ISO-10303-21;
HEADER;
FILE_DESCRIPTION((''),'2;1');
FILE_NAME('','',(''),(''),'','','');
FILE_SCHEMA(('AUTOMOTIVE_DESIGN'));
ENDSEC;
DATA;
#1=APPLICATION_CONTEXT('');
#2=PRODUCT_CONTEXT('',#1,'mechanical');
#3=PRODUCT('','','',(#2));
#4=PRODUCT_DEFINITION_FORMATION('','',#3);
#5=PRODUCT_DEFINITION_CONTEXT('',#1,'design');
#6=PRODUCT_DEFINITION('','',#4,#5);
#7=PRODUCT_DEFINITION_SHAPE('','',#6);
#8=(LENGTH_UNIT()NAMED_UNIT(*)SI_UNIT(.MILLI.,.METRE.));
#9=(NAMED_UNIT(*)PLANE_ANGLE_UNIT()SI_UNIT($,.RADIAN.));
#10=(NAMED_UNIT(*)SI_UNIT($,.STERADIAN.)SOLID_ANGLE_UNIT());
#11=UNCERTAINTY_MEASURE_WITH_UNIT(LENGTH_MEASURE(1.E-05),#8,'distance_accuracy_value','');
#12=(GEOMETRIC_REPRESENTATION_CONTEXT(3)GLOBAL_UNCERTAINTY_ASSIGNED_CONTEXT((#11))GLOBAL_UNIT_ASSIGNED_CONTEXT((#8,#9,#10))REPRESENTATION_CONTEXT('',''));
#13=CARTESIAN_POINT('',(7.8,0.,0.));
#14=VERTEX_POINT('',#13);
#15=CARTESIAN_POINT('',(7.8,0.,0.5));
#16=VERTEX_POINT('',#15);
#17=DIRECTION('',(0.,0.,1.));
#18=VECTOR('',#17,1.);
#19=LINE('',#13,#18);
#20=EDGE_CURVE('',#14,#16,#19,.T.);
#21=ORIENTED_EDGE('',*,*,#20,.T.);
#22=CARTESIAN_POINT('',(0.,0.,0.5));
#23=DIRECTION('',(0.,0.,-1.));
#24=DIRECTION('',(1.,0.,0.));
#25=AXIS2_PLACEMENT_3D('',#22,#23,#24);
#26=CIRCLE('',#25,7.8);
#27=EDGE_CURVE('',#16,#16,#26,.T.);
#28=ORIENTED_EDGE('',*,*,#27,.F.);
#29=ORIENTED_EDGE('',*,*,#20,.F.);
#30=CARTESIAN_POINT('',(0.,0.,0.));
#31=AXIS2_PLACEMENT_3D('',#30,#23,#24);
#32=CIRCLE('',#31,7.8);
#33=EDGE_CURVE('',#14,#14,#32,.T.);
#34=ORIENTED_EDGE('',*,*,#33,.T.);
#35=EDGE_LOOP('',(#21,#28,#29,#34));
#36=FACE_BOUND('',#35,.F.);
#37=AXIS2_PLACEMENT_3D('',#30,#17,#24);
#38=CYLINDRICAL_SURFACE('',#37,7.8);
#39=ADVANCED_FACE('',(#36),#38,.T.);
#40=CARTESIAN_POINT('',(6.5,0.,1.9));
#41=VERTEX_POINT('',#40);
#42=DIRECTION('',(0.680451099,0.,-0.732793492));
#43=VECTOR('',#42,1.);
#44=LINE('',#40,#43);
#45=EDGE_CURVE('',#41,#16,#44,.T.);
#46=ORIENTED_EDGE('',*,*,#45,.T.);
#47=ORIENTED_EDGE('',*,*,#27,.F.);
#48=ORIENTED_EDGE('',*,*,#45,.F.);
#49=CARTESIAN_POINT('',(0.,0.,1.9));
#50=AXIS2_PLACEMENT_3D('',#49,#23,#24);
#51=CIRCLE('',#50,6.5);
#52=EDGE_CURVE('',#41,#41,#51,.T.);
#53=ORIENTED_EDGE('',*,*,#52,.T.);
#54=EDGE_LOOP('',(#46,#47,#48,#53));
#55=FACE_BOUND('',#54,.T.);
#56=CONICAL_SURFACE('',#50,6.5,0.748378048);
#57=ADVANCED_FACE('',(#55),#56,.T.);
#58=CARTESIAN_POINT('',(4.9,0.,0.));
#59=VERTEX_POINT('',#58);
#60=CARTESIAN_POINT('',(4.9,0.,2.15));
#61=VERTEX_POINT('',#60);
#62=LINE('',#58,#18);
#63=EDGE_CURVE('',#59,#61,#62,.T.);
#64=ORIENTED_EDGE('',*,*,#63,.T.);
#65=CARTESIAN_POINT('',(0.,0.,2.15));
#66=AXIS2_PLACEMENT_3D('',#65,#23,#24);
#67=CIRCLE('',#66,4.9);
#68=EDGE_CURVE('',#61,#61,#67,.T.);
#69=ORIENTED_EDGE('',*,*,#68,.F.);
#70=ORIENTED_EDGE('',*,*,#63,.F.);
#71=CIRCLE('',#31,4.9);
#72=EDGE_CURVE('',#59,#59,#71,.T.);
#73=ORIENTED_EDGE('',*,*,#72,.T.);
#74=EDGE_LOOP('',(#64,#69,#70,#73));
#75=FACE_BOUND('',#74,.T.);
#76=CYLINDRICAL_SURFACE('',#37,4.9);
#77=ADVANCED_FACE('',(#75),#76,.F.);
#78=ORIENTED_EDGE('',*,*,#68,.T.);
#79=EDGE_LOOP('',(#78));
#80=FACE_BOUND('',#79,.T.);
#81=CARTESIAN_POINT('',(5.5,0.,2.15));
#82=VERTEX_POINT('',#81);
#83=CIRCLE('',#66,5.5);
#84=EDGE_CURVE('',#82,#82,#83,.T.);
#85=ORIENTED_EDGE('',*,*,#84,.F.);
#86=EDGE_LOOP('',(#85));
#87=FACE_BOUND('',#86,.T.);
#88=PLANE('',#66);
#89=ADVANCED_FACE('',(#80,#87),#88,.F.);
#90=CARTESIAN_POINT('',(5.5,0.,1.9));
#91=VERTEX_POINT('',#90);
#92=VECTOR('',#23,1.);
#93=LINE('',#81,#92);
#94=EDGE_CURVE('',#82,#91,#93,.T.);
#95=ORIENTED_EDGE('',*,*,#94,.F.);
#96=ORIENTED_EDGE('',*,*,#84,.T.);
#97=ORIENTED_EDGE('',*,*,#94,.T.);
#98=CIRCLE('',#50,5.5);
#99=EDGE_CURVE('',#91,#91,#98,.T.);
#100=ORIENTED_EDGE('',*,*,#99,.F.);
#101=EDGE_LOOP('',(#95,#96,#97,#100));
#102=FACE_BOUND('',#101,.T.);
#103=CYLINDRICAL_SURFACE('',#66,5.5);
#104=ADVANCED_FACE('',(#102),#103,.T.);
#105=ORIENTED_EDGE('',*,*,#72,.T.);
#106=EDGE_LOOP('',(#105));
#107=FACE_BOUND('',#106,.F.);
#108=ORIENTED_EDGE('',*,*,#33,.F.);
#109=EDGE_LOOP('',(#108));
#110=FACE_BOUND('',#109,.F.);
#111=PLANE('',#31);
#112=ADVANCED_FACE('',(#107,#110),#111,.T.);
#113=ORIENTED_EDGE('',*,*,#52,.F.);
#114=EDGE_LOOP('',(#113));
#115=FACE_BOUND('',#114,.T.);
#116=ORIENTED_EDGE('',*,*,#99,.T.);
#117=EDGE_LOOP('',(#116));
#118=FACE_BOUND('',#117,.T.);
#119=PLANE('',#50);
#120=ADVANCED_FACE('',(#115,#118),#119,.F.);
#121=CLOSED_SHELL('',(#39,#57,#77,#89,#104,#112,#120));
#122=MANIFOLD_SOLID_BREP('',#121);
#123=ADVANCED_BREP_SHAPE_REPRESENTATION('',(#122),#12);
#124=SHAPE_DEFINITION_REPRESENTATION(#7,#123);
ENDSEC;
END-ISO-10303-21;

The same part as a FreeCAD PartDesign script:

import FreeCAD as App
import Part
import Sketcher
Q = App.Units.Quantity

doc = App.newDocument("Part")
body = doc.addObject("PartDesign::Body", "Body")

sketch1 = body.newObject("Sketcher::SketchObject", "Sketch")
sketch1.AttachmentSupport = (doc.getObject("XZ_Plane"), [""])
sketch1.MapMode = "FlatFace"
sketch1.addGeometry([
    Part.LineSegment(App.Vector(7.8, 0, 0), App.Vector(4.9, 0, 0)),
    Part.LineSegment(App.Vector(4.9, 0, 0), App.Vector(4.9, 2.15, 0)),
    Part.LineSegment(App.Vector(4.9, 2.15, 0), App.Vector(5.5, 2.15, 0)),
    Part.LineSegment(App.Vector(5.5, 2.15, 0), App.Vector(5.5, 1.9, 0)),
    Part.LineSegment(App.Vector(5.5, 1.9, 0), App.Vector(6.5, 1.9, 0)),
    Part.LineSegment(App.Vector(6.5, 1.9, 0), App.Vector(7.8, 0.5, 0)),
    Part.LineSegment(App.Vector(7.8, 0.5, 0), App.Vector(7.8, 0, 0)),
], False)
sketch1.addConstraint([
    Sketcher.Constraint("Coincident", 0, 2, 1, 1),
    Sketcher.Constraint("Coincident", 1, 2, 2, 1),
    Sketcher.Constraint("Coincident", 2, 2, 3, 1),
    Sketcher.Constraint("Coincident", 3, 2, 4, 1),
    Sketcher.Constraint("Coincident", 4, 2, 5, 1),
    Sketcher.Constraint("Coincident", 5, 2, 6, 1),
    Sketcher.Constraint("Coincident", 6, 2, 0, 1),
    Sketcher.Constraint("Horizontal", 0),
    Sketcher.Constraint("Vertical", 1),
    Sketcher.Constraint("Horizontal", 2),
    Sketcher.Constraint("Vertical", 3),
    Sketcher.Constraint("Horizontal", 4),
    Sketcher.Constraint("Vertical", 6),
    Sketcher.Constraint("PointOnObject", 0, 2, -1),
    Sketcher.Constraint("DistanceX", 0, 2, 0, 1, Q("2.9 mm")),
    Sketcher.Constraint("DistanceX", 2, 1, 2, 2, Q("0.6 mm")),
    Sketcher.Constraint("DistanceY", 6, 2, 6, 1, Q("0.5 mm")),
    Sketcher.Constraint("DistanceY", 1, 1, 1, 2, Q("2.15 mm")),
    Sketcher.Constraint("DistanceX", -1, 1, 0, 2, Q("4.9 mm")),
    Sketcher.Constraint("DistanceY", -1, 1, 3, 2, Q("1.9 mm")),
    Sketcher.Constraint("DistanceX", 1, 2, 4, 2, Q("1.6 mm")),
])
revolution = body.newObject("PartDesign::Revolution", "Revolution")
revolution.Profile = sketch1
revolution.ReferenceAxis = (sketch1, ["V_Axis"])
revolution.Angle = 360

doc.recompute()
